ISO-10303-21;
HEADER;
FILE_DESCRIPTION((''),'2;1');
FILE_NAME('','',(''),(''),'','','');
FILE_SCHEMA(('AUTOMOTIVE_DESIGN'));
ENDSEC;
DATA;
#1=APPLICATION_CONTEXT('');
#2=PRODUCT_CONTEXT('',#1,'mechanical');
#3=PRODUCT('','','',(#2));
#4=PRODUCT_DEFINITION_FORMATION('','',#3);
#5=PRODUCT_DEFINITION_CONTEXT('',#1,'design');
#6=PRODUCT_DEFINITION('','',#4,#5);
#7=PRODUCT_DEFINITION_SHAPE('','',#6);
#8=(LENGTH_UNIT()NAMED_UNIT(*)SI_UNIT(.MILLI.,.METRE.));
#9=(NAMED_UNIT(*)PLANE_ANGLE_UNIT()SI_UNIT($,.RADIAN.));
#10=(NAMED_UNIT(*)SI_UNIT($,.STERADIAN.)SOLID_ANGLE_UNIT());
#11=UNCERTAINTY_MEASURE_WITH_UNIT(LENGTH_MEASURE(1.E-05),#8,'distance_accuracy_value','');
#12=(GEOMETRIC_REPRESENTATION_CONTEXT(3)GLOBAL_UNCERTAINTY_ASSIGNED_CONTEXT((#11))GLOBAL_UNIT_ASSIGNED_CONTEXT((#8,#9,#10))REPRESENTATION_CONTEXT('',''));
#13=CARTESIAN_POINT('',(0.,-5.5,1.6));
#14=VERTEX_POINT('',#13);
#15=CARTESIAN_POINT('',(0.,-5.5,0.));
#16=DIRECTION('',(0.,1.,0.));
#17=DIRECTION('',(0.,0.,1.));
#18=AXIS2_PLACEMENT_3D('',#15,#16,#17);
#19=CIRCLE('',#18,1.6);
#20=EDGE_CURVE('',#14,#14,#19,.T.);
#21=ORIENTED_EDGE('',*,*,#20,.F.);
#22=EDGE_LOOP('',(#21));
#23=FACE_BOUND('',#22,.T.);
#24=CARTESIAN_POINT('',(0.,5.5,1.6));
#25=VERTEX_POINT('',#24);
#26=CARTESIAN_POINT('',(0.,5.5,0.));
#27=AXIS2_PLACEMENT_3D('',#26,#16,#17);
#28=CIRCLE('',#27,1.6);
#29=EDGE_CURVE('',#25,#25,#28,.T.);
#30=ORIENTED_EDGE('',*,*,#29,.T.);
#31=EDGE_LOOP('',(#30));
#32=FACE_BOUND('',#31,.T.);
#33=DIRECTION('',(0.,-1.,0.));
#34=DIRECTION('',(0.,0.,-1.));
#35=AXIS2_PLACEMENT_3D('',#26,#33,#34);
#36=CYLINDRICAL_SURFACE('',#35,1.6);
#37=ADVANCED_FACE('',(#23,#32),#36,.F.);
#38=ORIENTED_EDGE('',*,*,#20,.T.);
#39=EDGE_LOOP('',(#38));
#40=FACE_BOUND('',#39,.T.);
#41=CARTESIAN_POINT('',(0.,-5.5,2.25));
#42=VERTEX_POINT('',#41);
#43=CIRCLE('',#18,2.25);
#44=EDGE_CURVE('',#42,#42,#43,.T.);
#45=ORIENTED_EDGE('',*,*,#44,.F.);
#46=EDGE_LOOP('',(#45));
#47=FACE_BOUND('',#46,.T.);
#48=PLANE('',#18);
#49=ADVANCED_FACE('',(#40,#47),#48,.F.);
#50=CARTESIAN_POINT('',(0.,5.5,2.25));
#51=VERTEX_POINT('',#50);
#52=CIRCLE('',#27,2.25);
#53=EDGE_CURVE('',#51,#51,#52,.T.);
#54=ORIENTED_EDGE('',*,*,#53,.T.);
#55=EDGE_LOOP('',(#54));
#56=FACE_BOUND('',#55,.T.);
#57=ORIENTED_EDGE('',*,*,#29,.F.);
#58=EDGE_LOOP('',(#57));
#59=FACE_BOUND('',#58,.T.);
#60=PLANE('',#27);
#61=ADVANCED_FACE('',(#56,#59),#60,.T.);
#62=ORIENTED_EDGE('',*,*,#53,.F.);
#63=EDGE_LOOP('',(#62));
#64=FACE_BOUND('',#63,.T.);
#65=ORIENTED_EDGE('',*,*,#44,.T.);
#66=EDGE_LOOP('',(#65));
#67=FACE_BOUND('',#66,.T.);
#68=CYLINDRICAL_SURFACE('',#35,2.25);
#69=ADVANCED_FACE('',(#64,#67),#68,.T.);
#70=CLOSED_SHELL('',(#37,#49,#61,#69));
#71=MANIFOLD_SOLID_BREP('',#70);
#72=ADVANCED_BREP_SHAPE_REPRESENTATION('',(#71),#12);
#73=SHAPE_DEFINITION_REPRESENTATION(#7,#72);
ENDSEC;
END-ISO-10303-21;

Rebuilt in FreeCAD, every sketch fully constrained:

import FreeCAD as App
import Part
import Sketcher

V = App.Vector
Q = App.Units.Quantity

doc = App.newDocument("Part")
body = doc.addObject("PartDesign::Body", "Body")

# Sketch on XZ plane
sketch1 = body.newObject("Sketcher::SketchObject", "Sketch")
sketch1.AttachmentSupport = (doc.getObject("XZ_Plane"), [""])
sketch1.MapMode = "FlatFace"
sketch1.addGeometry(Part.Circle(V(0, 0, 0), V(0, 0, 1), 2.2), False)
sketch1.addGeometry(Part.Circle(V(0, 0, 0), V(0, 0, 1), 1.6), False)
sketch1.addConstraint(Sketcher.Constraint("Coincident", 0, 3, -1, 1))
sketch1.addConstraint(Sketcher.Constraint("Coincident", 1, 3, -1, 1))
sketch1.addConstraint(Sketcher.Constraint("Diameter", 0, Q("4.5 mm")))
sketch1.addConstraint(Sketcher.Constraint("Diameter", 1, Q("3.2 mm")))
pad1 = body.newObject("PartDesign::Pad", "Pad")
pad1.Profile = sketch1
pad1.Length = 11
pad1.Midplane = True

doc.recompute()
